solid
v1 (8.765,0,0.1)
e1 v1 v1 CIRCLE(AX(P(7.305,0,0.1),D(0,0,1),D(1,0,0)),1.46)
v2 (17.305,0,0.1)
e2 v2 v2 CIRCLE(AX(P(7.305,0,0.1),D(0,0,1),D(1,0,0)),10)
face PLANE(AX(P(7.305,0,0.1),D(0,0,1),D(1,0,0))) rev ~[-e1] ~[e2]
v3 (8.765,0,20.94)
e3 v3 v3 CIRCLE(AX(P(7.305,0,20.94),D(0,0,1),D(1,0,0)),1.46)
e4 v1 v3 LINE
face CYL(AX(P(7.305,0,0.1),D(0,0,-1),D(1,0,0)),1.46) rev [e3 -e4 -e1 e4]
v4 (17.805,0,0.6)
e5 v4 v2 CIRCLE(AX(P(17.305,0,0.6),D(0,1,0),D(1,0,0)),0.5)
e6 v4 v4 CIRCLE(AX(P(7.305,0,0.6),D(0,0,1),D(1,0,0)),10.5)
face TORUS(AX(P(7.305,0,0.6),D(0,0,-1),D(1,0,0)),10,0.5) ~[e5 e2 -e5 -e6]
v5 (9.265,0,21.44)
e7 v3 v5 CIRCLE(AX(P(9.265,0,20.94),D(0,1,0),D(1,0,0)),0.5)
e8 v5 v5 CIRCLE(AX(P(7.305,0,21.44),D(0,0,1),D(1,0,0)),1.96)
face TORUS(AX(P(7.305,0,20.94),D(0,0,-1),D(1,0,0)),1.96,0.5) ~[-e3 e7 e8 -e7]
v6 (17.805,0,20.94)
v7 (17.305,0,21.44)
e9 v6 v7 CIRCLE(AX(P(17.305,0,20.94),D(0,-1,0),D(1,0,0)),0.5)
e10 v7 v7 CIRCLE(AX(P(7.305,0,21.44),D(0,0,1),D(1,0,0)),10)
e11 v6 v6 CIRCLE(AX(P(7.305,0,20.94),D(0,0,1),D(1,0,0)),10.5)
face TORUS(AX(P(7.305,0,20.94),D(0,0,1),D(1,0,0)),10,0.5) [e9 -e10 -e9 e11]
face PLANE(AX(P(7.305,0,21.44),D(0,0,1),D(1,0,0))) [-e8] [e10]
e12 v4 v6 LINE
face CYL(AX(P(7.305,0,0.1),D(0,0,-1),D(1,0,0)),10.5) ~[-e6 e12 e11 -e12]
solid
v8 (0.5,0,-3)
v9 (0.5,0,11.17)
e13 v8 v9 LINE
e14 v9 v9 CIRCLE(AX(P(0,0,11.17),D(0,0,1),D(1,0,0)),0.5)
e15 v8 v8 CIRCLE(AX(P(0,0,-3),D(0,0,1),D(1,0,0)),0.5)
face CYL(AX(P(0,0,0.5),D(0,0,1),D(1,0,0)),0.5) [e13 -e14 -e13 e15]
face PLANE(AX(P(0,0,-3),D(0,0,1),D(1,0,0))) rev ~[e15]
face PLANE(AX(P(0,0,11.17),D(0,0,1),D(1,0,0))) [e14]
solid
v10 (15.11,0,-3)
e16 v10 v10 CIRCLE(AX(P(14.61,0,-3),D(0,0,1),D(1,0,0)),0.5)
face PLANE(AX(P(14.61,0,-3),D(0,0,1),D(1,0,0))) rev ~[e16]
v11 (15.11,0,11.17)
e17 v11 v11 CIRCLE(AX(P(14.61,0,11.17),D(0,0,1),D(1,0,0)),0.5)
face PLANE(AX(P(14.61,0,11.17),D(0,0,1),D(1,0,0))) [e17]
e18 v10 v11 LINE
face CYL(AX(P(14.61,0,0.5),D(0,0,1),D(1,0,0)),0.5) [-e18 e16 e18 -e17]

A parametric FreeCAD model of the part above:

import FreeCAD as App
import Part
import Sketcher

V = App.Vector


def edges_at(feature, points):
    """Names of the edges that pass closest to the given points."""
    edges = feature.Shape.Edges
    near = lambda p: min(range(len(edges)), key=lambda i: edges[i].distToShape(Part.Vertex(*p))[0])
    return sorted({f"Edge{near(p) + 1}" for p in points})

doc = App.newDocument("Part")
body = doc.addObject("PartDesign::Body", "Body")
body.AllowCompound = True

sketch1 = doc.addObject("Sketcher::SketchObject", "Sketch")
body.addObject(sketch1)
sketch1.AttachmentSupport = (doc.XY_Plane, [""])
sketch1.MapMode = "FlatFace"
sketch1.AttachmentOffset = App.Placement(V(0, 0, 0.5), App.Rotation())
sketch1.addGeometry([
    Part.Circle(V(0, 0, 0), V(0, 0, 1), 0.5),
    Part.Circle(V(14.6, 0, 0), V(0, 0, 1), 0.5),
], False)
sketch1.addConstraint([
    Sketcher.Constraint("Coincident", 0, 3, -1, 1),
    Sketcher.Constraint("Equal", 0, 1),
    Sketcher.Constraint("PointOnObject", 1, 3, -1),
    Sketcher.Constraint("Diameter", 0, 1.0),
    Sketcher.Constraint("DistanceX", -1, 1, 1, 3, 14.61),
])
pad1 = doc.addObject("PartDesign::Pad", "Pad")
body.addObject(pad1)
pad1.Profile = sketch1
pad1.Type = "TwoLengths"
pad1.Length = 10.67
pad1.Length2 = 3.5
body2 = doc.addObject("PartDesign::Body", "Body001")

sketch2 = doc.addObject("Sketcher::SketchObject", "Sketch001")
body2.addObject(sketch2)
sketch2.AttachmentSupport = (doc.getObject("XY_Plane001"), [""])
sketch2.MapMode = "FlatFace"
sketch2.AttachmentOffset = App.Placement(V(0, 0, 0.1), App.Rotation())
sketch2.addGeometry([
    Part.Circle(V(7.3, 0, 0), V(0, 0, 1), 10.5),
    Part.Circle(V(7.3, 0, 0), V(0, 0, 1), 1.5),
], False)
sketch2.addConstraint([
    Sketcher.Constraint("Coincident", 1, 3, 0, 3),
    Sketcher.Constraint("PointOnObject", 0, 3, -1),
    Sketcher.Constraint("Diameter", 0, 21.0),
    Sketcher.Constraint("Diameter", 1, 2.92),
    Sketcher.Constraint("DistanceX", -1, 1, 0, 3, 7.305),
])
pad2 = doc.addObject("PartDesign::Pad", "Pad001")
body2.addObject(pad2)
pad2.Profile = sketch2
pad2.Length = 21.34
doc.recompute()

fillet = doc.addObject("PartDesign::Fillet", "Fillet")
body2.addObject(fillet)
fillet.Base = (pad2, edges_at(pad2, [(5.845, 0, 21.44), (-3.195, 0, 21.44), (-3.195, 0, 0.1)]))
fillet.Radius = 0.5

doc.recompute()
